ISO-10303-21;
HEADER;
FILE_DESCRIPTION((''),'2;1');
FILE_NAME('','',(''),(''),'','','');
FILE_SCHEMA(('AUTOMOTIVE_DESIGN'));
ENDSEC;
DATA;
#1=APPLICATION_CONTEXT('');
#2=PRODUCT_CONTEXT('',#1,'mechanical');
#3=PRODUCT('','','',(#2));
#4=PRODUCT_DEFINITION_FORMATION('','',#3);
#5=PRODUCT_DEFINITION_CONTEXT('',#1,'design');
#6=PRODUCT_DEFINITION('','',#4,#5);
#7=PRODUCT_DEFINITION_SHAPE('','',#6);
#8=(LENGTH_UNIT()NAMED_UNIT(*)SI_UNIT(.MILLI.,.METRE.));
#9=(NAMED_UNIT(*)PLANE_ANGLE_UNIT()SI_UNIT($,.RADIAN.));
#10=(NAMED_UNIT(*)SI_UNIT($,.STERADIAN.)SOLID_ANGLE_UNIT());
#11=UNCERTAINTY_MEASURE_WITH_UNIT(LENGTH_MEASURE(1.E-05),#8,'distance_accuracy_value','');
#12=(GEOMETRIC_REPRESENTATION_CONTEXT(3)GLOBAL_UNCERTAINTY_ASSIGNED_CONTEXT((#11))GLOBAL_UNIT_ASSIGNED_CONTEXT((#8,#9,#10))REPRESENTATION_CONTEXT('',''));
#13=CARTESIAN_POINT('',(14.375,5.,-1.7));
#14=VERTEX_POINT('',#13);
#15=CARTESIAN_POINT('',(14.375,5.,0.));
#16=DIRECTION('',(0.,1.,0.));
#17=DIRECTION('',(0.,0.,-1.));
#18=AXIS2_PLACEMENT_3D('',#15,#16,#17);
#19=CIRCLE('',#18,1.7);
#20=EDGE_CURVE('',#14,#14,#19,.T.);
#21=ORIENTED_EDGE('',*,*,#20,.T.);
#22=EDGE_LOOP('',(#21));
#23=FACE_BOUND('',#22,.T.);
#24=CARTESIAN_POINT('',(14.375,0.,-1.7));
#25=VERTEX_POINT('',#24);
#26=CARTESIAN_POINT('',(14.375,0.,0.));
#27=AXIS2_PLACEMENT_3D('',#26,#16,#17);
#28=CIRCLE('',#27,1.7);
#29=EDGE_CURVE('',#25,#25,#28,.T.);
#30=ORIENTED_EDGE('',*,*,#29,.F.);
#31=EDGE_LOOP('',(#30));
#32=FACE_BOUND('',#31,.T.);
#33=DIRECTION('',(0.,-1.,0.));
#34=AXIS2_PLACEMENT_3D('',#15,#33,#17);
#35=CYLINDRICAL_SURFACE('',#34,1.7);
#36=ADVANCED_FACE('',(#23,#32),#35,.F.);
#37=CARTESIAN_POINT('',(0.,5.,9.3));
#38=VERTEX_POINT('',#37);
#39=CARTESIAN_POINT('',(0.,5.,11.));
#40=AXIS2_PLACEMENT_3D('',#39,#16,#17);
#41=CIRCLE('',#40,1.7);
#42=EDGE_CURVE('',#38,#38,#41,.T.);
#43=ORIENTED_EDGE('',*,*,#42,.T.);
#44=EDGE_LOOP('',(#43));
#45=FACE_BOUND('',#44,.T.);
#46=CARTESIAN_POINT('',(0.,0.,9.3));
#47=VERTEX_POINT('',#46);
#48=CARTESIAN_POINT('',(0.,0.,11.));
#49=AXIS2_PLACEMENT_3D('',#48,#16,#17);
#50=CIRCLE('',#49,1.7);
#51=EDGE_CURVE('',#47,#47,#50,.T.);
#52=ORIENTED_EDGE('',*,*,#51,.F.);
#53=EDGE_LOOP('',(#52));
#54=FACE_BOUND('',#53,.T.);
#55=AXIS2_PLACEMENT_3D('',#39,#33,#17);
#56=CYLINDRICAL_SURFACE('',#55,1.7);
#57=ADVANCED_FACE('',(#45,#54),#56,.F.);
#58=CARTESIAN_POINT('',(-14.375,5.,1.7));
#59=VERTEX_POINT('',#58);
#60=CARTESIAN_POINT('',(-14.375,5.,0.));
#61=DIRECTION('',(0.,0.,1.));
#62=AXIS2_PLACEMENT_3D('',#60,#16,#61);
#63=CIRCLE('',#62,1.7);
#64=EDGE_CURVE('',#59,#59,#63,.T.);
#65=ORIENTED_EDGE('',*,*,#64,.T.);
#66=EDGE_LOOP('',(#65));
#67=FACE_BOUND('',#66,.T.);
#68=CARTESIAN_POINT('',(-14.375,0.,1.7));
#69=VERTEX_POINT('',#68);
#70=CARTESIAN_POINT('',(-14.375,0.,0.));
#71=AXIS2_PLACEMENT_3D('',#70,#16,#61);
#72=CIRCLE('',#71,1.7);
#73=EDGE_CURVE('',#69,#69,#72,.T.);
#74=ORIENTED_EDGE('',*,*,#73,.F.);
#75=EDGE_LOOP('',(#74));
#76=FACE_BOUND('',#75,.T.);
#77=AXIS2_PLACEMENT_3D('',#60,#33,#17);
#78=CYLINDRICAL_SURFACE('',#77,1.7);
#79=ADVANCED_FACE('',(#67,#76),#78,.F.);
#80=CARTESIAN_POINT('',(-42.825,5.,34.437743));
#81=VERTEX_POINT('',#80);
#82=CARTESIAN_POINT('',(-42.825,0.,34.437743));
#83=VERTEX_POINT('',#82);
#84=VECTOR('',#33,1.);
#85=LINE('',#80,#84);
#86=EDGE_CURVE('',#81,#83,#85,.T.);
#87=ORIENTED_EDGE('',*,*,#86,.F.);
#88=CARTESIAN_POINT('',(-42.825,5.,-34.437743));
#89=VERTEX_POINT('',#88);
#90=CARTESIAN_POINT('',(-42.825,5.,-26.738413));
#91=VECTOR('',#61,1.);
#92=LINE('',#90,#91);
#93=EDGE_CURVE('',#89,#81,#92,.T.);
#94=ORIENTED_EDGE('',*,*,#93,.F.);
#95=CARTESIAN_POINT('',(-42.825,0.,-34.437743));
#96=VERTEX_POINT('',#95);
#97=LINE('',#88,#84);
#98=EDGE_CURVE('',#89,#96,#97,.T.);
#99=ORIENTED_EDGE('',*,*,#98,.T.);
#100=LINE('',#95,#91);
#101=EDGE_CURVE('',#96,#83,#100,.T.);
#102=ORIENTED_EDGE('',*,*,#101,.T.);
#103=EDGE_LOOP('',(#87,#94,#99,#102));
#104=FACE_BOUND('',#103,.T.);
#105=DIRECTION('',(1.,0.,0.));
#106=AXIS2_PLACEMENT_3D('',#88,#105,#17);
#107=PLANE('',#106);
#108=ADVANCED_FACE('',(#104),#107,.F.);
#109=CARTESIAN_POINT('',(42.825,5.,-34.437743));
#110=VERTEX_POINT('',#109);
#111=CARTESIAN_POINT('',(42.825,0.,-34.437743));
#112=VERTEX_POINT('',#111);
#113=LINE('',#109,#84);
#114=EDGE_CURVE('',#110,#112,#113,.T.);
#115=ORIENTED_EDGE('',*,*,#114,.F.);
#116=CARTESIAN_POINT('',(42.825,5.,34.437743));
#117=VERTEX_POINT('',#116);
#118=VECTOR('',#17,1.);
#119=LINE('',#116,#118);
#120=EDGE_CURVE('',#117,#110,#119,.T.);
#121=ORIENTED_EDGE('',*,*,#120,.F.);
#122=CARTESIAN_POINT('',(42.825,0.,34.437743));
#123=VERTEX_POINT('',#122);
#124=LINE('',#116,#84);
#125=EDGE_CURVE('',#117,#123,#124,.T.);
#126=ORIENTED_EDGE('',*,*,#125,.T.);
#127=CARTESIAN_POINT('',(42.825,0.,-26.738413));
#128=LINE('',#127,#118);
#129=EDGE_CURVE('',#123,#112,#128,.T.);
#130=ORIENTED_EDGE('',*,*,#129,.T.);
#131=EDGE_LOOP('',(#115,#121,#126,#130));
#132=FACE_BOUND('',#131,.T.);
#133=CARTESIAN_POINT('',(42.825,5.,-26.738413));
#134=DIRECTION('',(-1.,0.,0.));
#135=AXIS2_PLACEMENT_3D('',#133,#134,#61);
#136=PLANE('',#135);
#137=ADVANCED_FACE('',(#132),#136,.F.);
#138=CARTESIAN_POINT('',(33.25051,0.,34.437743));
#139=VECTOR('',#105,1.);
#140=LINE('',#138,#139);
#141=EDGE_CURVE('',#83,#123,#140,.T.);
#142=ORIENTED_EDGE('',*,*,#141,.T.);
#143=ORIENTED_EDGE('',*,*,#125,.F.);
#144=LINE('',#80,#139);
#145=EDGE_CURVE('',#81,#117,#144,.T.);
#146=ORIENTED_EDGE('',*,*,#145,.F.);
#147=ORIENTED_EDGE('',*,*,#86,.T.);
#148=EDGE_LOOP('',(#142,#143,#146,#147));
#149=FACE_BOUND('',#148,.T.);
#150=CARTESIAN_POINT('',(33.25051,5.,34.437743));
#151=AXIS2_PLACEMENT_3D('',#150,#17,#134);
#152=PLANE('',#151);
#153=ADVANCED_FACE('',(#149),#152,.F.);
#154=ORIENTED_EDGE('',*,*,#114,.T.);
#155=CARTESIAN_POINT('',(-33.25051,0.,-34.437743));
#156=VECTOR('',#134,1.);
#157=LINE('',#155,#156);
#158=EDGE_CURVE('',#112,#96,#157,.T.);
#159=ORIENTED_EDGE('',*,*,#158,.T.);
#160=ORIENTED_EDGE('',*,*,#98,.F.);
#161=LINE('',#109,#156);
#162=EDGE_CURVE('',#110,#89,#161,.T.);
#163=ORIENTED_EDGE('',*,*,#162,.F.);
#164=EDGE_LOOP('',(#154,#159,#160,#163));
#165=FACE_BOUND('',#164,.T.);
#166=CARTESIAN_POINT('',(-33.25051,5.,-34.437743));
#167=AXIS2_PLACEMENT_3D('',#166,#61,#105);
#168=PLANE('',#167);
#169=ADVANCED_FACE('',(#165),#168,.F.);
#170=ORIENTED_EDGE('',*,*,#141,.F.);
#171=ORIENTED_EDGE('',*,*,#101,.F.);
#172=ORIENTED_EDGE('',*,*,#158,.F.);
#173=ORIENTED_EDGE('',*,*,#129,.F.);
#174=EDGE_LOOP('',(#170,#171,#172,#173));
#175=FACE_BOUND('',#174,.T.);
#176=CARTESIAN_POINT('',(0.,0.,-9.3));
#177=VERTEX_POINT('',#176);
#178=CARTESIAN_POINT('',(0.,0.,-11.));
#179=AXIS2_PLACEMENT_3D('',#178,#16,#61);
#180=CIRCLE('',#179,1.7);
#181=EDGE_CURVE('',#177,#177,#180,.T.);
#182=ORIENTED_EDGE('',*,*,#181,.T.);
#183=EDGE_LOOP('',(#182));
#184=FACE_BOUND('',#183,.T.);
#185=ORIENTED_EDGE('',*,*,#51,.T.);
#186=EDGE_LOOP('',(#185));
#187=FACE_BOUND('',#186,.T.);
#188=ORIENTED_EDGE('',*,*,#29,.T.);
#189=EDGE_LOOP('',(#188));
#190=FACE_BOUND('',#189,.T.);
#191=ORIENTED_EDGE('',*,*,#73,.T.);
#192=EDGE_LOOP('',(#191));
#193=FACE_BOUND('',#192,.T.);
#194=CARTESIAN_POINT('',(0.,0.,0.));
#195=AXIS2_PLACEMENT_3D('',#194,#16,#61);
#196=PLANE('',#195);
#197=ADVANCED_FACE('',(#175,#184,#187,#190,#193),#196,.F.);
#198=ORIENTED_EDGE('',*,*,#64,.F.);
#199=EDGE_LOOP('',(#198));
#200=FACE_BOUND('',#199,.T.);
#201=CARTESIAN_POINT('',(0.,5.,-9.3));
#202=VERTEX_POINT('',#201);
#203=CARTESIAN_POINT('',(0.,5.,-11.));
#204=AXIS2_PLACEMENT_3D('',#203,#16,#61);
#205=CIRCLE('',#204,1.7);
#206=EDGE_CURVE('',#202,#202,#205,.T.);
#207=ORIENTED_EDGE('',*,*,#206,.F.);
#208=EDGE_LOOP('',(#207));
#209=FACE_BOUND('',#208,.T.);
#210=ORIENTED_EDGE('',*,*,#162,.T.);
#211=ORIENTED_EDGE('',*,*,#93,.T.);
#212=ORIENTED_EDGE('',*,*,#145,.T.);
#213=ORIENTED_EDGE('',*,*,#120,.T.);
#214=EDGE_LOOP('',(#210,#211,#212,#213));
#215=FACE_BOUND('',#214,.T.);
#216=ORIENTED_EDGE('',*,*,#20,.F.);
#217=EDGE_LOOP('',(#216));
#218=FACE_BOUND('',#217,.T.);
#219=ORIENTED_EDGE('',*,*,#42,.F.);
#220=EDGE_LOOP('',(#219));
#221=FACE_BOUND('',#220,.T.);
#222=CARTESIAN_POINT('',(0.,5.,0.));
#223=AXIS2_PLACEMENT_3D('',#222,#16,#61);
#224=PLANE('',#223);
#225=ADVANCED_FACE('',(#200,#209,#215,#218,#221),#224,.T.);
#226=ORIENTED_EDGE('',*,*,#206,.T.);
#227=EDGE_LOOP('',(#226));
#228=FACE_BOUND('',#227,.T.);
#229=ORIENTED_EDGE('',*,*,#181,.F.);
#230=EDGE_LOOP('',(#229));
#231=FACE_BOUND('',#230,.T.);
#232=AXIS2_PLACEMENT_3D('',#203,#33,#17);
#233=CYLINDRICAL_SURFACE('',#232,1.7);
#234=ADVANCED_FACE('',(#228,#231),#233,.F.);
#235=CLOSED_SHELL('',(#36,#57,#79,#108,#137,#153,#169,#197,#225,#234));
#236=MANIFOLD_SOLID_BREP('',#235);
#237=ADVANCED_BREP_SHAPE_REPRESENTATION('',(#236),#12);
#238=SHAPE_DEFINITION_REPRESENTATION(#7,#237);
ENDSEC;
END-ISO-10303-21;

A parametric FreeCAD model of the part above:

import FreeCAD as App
import Part
import Sketcher

doc = App.newDocument("Part")
body = doc.addObject("PartDesign::Body", "Body")

# Sketch on XZ plane
sketch1 = doc.addObject("Sketcher::SketchObject", "Sketch")
body.addObject(sketch1)
sketch1.AttachmentSupport = (doc.XZ_Plane, [""])
sketch1.MapMode = "FlatFace"
sketch1.addGeometry([
    Part.LineSegment(App.Vector(42.8, -34.4, 0), App.Vector(-42.8, -34.4, 0)),  # 0
    Part.LineSegment(App.Vector(-42.8, -34.4, 0), App.Vector(-42.8, 34.4, 0)),  # 1
    Part.LineSegment(App.Vector(-42.8, 34.4, 0), App.Vector(42.8, 34.4, 0)),  # 2
    Part.LineSegment(App.Vector(42.8, 34.4, 0), App.Vector(42.8, -34.4, 0)),  # 3
    Part.Circle(App.Vector(-14.4, 0, 0), App.Vector(0, 0, 1), 1.7),  # 4
    Part.Circle(App.Vector(0, 11, 0), App.Vector(0, 0, 1), 1.7),  # 5
    Part.Circle(App.Vector(14.4, 0, 0), App.Vector(0, 0, 1), 1.7),  # 6
    Part.Circle(App.Vector(0, -11, 0), App.Vector(0, 0, 1), 1.7),  # 7
], False)
sketch1.addConstraint([
    Sketcher.Constraint("Coincident", 0, 2, 1, 1),
    Sketcher.Constraint("Coincident", 1, 2, 2, 1),
    Sketcher.Constraint("Coincident", 2, 2, 3, 1),
    Sketcher.Constraint("Coincident", 3, 2, 0, 1),
    Sketcher.Constraint("Horizontal", 0),
    Sketcher.Constraint("Vertical", 1),
    Sketcher.Constraint("Horizontal", 2),
    Sketcher.Constraint("Vertical", 3),
    Sketcher.Constraint("Equal", 4, 5),
    Sketcher.Constraint("Equal", 5, 6),
    Sketcher.Constraint("Equal", 6, 7),
    Sketcher.Constraint("Symmetric", 4, 3, 6, 3, -1, 1),
    Sketcher.Constraint("Symmetric", 5, 3, 7, 3, -1, 1),
    Sketcher.Constraint("Symmetric", 0, 2, 2, 2, -1, 1),
    Sketcher.Constraint("PointOnObject", 4, 3, -1),
    Sketcher.Constraint("PointOnObject", 5, 3, -2),
    Sketcher.Constraint("Diameter", 4, 3.4),
    Sketcher.Constraint("DistanceY", -1, 1, 5, 3, 11.0),
    Sketcher.Constraint("DistanceX", 0, 2, 0, 1, 85.65),
    Sketcher.Constraint("DistanceX", 0, 2, 6, 3, 57.2),
    Sketcher.Constraint("DistanceY", 1, 1, 1, 2, 68.875486),
])
pad1 = doc.addObject("PartDesign::Pad", "Pad")
body.addObject(pad1)
pad1.Profile = sketch1
pad1.Length = 5
pad1.Reversed = True

doc.recompute()
